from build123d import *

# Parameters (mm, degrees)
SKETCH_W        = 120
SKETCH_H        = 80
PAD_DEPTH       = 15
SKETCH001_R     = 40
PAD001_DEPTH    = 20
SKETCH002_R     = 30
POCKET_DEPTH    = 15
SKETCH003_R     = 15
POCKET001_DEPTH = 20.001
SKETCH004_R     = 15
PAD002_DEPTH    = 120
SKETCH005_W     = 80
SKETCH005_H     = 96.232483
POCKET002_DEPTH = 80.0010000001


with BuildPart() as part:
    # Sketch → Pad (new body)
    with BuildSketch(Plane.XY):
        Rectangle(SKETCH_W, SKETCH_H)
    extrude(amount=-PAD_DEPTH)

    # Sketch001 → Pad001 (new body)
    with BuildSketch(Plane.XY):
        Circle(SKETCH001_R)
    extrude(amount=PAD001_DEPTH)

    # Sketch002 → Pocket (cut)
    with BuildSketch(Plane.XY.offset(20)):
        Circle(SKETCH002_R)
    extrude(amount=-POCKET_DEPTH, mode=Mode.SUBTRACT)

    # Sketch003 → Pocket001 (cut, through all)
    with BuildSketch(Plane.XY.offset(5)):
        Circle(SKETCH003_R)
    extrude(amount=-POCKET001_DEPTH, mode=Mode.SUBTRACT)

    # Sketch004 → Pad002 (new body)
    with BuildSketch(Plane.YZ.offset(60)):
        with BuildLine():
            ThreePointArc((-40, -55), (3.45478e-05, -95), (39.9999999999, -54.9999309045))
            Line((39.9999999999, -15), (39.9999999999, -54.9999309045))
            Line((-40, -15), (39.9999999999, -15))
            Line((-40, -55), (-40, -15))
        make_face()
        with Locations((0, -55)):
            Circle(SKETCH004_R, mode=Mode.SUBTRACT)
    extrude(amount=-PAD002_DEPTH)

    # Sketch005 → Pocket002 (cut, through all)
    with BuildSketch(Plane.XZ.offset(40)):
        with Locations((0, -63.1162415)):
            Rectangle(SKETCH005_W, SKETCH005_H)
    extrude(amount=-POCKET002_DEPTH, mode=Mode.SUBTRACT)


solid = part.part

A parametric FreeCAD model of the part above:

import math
import FreeCAD as App
import Part
import Sketcher
from FreeCAD import Vector
Q = App.Units.Quantity


def add_polygon(sketch, points):
    """Adds a closed chain of lines whose ends are joined by coincident constraints."""
    first, n = sketch.GeometryCount, len(points)
    for a, b in zip(points, points[1:] + points[:1]):
        sketch.addGeometry(Part.LineSegment(App.Vector(*a, 0), App.Vector(*b, 0)), False)
    for i in range(n):
        sketch.addConstraint(Sketcher.Constraint("Coincident", first + i, 2, first + (i + 1) % n, 1))

doc = App.newDocument("Part")
body = doc.addObject("PartDesign::Body", "Body")

sketch1 = doc.addObject("Sketcher::SketchObject", "Sketch")
body.addObject(sketch1)
sketch1.AttachmentSupport = (doc.XY_Plane, [""])
sketch1.MapMode = "FlatFace"
add_polygon(sketch1, [(-60, 40), (-60, -40), (60, -40), (60, 40)])
sketch1.addConstraint([
    Sketcher.Constraint("Vertical", 0),
    Sketcher.Constraint("Horizontal", 1),
    Sketcher.Constraint("Vertical", 2),
    Sketcher.Constraint("Horizontal", 3),
    Sketcher.Constraint("Symmetric", 0, 2, 2, 2, -1, 1),
    Sketcher.Constraint("DistanceX", 1, 1, 1, 2, Q("120 mm")),
    Sketcher.Constraint("DistanceY", 0, 2, 0, 1, Q("80 mm")),
])
pad1 = doc.addObject("PartDesign::Pad", "Pad")
body.addObject(pad1)
pad1.Profile = sketch1
pad1.Length = 15
pad1.Reversed = True

sketch2 = doc.addObject("Sketcher::SketchObject", "Sketch001")
body.addObject(sketch2)
sketch2.AttachmentSupport = (doc.XY_Plane, [""])
sketch2.MapMode = "FlatFace"
sketch2.addGeometry(Part.Circle(Vector(0, 0, 0), Vector(0, 0, 1), 40), False)
sketch2.addConstraint([
    Sketcher.Constraint("Coincident", 0, 3, -1, 1),
    Sketcher.Constraint("Diameter", 0, Q("80 mm")),
])
pad2 = doc.addObject("PartDesign::Pad", "Pad001")
body.addObject(pad2)
pad2.Profile = sketch2
pad2.Length = 20

sketch3 = doc.addObject("Sketcher::SketchObject", "Sketch002")
body.addObject(sketch3)
sketch3.AttachmentSupport = (doc.XY_Plane, [""])
sketch3.MapMode = "FlatFace"
sketch3.AttachmentOffset = App.Placement(Vector(0, 0, 20), App.Rotation())
sketch3.addGeometry(Part.Circle(Vector(0, 0, 0), Vector(0, 0, 1), 30), False)
sketch3.addConstraint([
    Sketcher.Constraint("Coincident", 0, 3, -1, 1),
    Sketcher.Constraint("Diameter", 0, Q("60 mm")),
])
pocket1 = doc.addObject("PartDesign::Pocket", "Pocket")
body.addObject(pocket1)
pocket1.Profile = sketch3
pocket1.Length = 15

sketch4 = doc.addObject("Sketcher::SketchObject", "Sketch003")
body.addObject(sketch4)
sketch4.AttachmentSupport = (doc.XY_Plane, [""])
sketch4.MapMode = "FlatFace"
sketch4.AttachmentOffset = App.Placement(Vector(0, 0, 5), App.Rotation())
sketch4.addGeometry(Part.Circle(Vector(0, 0, 0), Vector(0, 0, 1), 15), False)
sketch4.addConstraint([
    Sketcher.Constraint("Coincident", 0, 3, -1, 1),
    Sketcher.Constraint("Diameter", 0, Q("30 mm")),
])
pocket2 = doc.addObject("PartDesign::Pocket", "Pocket001")
body.addObject(pocket2)
pocket2.Profile = sketch4
pocket2.Type = "ThroughAll"

sketch5 = doc.addObject("Sketcher::SketchObject", "Sketch004")
body.addObject(sketch5)
sketch5.AttachmentSupport = (doc.YZ_Plane, [""])
sketch5.MapMode = "FlatFace"
sketch5.AttachmentOffset = App.Placement(Vector(0, 0, 60), App.Rotation())
sketch5.addGeometry([
    Part.ArcOfCircle(Part.Circle(Vector(0, -55, 0), Vector(0, 0, 1), 40), math.radians(180), math.radians(360.000099)),
    Part.LineSegment(Vector(40, -54.999931, 0), Vector(40, -15, 0)),
    Part.LineSegment(Vector(40, -15, 0), Vector(-40, -15, 0)),
    Part.LineSegment(Vector(-40, -15, 0), Vector(-40, -55, 0)),
    Part.Circle(Vector(0, -55, 0), Vector(0, 0, 1), 15),
], False)
sketch5.addConstraint([
    Sketcher.Constraint("Coincident", 0, 2, 1, 1),
    Sketcher.Constraint("Coincident", 1, 2, 2, 1),
    Sketcher.Constraint("Coincident", 2, 2, 3, 1),
    Sketcher.Constraint("Coincident", 3, 2, 0, 1),
    Sketcher.Constraint("Vertical", 1),
    Sketcher.Constraint("Horizontal", 2),
    Sketcher.Constraint("Vertical", 3),
    Sketcher.Constraint("Coincident", 4, 3, 0, 3),
    Sketcher.Constraint("PointOnObject", 0, 3, -2),
    Sketcher.Constraint("Diameter", 4, Q("30 mm")),
    Sketcher.Constraint("Radius", 0, Q("40 mm")),
    Sketcher.Constraint("DistanceY", 3, 2, 3, 1, Q("40 mm")),
    Sketcher.Constraint("DistanceY", 0, 3, -1, 1, Q("55 mm")),
    Sketcher.Constraint("DistanceY", 1, 2, -1, 1, Q("15 mm")),
    Sketcher.Constraint("DistanceY", 1, 1, 1, 2, Q("39.999931 mm")),
])
pad3 = doc.addObject("PartDesign::Pad", "Pad002")
body.addObject(pad3)
pad3.Profile = sketch5
pad3.Length = 120
pad3.Reversed = True

sketch6 = doc.addObject("Sketcher::SketchObject", "Sketch005")
body.addObject(sketch6)
sketch6.AttachmentSupport = (doc.XZ_Plane, [""])
sketch6.MapMode = "FlatFace"
sketch6.AttachmentOffset = App.Placement(Vector(0, 0, 40), App.Rotation())
add_polygon(sketch6, [(-40, -15), (-40, -111), (40, -111), (40, -15)])
sketch6.addConstraint([
    Sketcher.Constraint("Vertical", 0),
    Sketcher.Constraint("Horizontal", 1),
    Sketcher.Constraint("Vertical", 2),
    Sketcher.Constraint("Horizontal", 3),
    Sketcher.Constraint("DistanceX", 1, 1, 1, 2, Q("80 mm")),
    Sketcher.Constraint("DistanceX", 0, 2, -1, 1, Q("40 mm")),
    Sketcher.Constraint("DistanceY", 2, 2, -1, 1, Q("15 mm")),
    Sketcher.Constraint("DistanceY", 0, 2, 0, 1, Q("96.232483 mm")),
])
pocket3 = doc.addObject("PartDesign::Pocket", "Pocket002")
body.addObject(pocket3)
pocket3.Profile = sketch6
pocket3.Type = "ThroughAll"

doc.recompute()
